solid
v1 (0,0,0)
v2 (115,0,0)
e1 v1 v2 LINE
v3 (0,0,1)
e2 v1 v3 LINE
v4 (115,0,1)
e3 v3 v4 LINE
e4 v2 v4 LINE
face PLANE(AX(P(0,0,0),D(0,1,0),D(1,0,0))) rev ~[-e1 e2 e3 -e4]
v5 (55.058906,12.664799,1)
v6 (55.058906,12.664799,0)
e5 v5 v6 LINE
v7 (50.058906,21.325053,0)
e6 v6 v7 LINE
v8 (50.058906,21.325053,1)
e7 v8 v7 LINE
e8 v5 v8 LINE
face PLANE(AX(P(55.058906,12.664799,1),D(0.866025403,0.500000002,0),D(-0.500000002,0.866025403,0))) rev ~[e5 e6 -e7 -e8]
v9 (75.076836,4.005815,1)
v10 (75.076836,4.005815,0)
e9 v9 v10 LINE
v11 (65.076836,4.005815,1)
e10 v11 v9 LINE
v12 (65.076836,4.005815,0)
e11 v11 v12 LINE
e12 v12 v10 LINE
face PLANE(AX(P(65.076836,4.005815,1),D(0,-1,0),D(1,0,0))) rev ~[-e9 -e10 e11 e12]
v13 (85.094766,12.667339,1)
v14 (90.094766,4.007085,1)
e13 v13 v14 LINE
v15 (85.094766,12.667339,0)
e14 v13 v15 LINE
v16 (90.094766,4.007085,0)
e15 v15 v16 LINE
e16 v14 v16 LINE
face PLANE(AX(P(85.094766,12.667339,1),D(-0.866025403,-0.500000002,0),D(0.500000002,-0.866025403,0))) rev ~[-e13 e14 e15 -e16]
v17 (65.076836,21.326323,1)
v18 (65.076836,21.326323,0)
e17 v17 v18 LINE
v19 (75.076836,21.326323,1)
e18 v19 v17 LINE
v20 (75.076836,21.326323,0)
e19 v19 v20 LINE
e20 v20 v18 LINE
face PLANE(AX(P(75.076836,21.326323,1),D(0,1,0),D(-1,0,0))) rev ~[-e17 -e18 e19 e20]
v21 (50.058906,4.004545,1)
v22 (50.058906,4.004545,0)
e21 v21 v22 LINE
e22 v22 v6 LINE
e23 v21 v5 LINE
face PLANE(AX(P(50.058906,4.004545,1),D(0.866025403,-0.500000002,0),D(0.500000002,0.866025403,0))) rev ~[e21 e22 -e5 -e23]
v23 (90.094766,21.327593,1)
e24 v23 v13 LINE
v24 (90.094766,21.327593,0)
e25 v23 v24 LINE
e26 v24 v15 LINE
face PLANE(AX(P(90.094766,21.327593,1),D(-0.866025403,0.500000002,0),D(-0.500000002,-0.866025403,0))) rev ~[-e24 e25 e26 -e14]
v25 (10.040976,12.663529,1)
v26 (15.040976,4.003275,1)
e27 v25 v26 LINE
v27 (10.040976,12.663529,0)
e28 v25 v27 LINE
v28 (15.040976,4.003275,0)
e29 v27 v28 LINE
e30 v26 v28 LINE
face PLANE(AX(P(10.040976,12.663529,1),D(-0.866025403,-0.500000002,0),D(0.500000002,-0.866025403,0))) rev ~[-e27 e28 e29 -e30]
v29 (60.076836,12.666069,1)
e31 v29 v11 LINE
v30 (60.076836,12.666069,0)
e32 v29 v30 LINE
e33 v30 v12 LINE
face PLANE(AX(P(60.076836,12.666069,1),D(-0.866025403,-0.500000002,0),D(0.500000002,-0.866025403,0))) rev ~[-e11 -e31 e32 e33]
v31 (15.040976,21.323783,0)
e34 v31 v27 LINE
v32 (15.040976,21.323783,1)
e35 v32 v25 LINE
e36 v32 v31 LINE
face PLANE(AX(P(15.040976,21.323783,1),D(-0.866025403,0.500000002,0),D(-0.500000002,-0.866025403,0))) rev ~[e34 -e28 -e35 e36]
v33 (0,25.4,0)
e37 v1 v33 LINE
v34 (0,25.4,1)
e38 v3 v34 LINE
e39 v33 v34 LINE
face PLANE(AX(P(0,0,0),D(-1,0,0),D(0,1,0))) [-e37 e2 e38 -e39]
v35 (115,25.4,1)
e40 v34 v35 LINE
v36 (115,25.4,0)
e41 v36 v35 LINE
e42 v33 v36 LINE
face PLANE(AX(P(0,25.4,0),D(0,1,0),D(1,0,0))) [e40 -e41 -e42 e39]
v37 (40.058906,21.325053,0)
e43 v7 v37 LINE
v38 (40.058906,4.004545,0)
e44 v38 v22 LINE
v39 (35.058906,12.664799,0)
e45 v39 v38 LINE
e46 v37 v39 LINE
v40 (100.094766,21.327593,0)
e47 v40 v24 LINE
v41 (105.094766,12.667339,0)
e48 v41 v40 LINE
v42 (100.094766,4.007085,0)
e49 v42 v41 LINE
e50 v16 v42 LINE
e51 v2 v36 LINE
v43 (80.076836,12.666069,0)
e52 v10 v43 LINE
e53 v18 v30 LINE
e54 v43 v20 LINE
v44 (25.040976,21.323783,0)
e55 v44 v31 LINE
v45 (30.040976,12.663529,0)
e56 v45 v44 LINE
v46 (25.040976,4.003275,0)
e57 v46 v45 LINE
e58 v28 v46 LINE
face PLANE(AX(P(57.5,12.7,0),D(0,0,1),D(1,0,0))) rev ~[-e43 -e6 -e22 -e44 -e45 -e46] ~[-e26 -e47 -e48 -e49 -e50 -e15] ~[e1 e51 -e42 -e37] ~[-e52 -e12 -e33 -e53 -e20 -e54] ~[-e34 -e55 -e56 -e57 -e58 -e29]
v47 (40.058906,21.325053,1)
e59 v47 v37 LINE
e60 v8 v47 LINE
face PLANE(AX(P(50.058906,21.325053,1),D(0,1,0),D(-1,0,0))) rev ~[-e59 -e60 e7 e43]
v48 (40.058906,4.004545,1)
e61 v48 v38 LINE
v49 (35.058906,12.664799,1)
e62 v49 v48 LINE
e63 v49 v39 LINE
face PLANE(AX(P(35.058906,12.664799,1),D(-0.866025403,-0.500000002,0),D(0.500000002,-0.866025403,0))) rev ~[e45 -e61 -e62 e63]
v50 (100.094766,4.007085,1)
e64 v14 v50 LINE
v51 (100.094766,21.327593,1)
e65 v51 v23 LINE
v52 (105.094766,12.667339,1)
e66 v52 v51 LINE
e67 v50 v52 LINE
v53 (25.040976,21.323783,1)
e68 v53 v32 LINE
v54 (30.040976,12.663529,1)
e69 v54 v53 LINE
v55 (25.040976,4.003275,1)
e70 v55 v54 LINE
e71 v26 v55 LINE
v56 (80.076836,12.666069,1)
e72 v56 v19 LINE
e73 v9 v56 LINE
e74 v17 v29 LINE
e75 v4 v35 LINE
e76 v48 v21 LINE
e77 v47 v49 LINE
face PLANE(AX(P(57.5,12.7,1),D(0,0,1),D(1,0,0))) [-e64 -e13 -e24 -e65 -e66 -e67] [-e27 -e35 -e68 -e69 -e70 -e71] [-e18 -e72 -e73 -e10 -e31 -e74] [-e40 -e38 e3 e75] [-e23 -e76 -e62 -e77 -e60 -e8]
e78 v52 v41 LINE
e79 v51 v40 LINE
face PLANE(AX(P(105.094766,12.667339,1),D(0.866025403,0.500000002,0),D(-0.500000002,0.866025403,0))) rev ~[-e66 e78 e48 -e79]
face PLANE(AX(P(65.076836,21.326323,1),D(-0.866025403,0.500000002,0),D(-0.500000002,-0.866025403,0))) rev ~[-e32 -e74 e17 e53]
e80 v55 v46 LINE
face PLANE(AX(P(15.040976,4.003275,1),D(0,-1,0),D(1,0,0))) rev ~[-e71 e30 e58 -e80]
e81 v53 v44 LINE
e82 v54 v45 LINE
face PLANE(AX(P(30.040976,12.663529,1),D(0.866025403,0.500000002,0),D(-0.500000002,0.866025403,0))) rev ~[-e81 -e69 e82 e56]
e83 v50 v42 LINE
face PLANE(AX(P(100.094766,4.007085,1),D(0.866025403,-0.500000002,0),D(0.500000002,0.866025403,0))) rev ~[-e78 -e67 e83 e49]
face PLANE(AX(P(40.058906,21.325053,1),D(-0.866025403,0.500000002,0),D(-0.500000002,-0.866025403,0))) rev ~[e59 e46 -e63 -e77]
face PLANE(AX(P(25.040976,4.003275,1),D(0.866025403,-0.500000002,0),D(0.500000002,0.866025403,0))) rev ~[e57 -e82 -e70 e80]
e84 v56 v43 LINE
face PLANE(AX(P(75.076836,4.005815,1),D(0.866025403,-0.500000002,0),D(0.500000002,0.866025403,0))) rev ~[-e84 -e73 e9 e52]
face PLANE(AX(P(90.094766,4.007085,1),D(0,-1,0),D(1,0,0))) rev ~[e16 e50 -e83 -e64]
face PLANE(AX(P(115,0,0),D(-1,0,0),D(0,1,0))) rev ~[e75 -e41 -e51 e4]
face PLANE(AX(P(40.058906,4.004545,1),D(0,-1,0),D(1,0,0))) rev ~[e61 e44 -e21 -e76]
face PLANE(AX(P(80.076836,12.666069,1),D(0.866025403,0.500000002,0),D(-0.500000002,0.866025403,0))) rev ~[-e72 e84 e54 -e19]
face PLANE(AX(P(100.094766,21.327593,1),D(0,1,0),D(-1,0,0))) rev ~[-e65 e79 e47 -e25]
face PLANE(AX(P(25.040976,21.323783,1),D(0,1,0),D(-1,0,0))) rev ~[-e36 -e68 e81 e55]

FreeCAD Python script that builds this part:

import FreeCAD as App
import Part
import Sketcher
Q = App.Units.Quantity


def add_polygon(sketch, points):
    """Adds a closed chain of lines whose ends are joined by coincident constraints."""
    first, n = sketch.GeometryCount, len(points)
    for a, b in zip(points, points[1:] + points[:1]):
        sketch.addGeometry(Part.LineSegment(App.Vector(*a, 0), App.Vector(*b, 0)), False)
    for i in range(n):
        sketch.addConstraint(Sketcher.Constraint("Coincident", first + i, 2, first + (i + 1) % n, 1))

doc = App.newDocument("Part")
body = doc.addObject("PartDesign::Body", "Body")

# Sketch on XY plane
sketch1 = body.newObject("Sketcher::SketchObject", "Sketch")
sketch1.AttachmentSupport = (doc.getObject("XY_Plane"), [""])
sketch1.MapMode = "FlatFace"
add_polygon(sketch1, [(0, 25), (0, 0), (115, 0), (115, 25)])  # lines 0-3
sketch1.addConstraint(Sketcher.Constraint("Vertical", 0))
sketch1.addConstraint(Sketcher.Constraint("Horizontal", 1))
sketch1.addConstraint(Sketcher.Constraint("Vertical", 2))
sketch1.addConstraint(Sketcher.Constraint("Horizontal", 3))
sketch1.addConstraint(Sketcher.Constraint("Coincident", 0, 2, -1, 1))
sketch1.addConstraint(Sketcher.Constraint("DistanceX", 1, 1, 1, 2, Q("115 mm")))
sketch1.addConstraint(Sketcher.Constraint("DistanceY", 0, 2, 0, 1, Q("25.4 mm")))
pad1 = body.newObject("PartDesign::Pad", "Pad")
pad1.Profile = sketch1
pad1.Length = 1

# Sketch on XY plane
sketch2 = body.newObject("Sketcher::SketchObject", "Sketch001")
sketch2.AttachmentSupport = (doc.getObject("XY_Plane"), [""])
sketch2.MapMode = "FlatFace"
sketch2.AttachmentOffset = App.Placement(App.Vector(0, 0, 1), App.Rotation())
add_polygon(sketch2, [(25, 4), (30, 13), (25, 21), (15, 21), (10, 13), (15, 4)])  # lines 0-5
add_polygon(sketch2, [(50, 4), (55, 13), (50, 21), (40, 21), (35, 13), (40, 4)])  # lines 6-11
add_polygon(sketch2, [(75, 4), (80, 13), (75, 21), (65, 21), (60, 13), (65, 4)])  # lines 12-17
add_polygon(sketch2, [(100, 4), (105, 13), (100, 21), (90, 21), (85, 13), (90, 4)])  # lines 18-23
sketch2.addConstraint(Sketcher.Constraint("Horizontal", 2))
sketch2.addConstraint(Sketcher.Constraint("Horizontal", 5))
sketch2.addConstraint(Sketcher.Constraint("Horizontal", 8))
sketch2.addConstraint(Sketcher.Constraint("Horizontal", 11))
sketch2.addConstraint(Sketcher.Constraint("Horizontal", 14))
sketch2.addConstraint(Sketcher.Constraint("Horizontal", 17))
sketch2.addConstraint(Sketcher.Constraint("Horizontal", 20))
sketch2.addConstraint(Sketcher.Constraint("Horizontal", 23))
sketch2.addConstraint(Sketcher.Constraint("Parallel", 0, 3))
sketch2.addConstraint(Sketcher.Constraint("Parallel", 1, 4))
sketch2.addConstraint(Sketcher.Constraint("Parallel", 3, 6))
sketch2.addConstraint(Sketcher.Constraint("Parallel", 4, 7))
sketch2.addConstraint(Sketcher.Constraint("Parallel", 6, 9))
sketch2.addConstraint(Sketcher.Constraint("Parallel", 7, 10))
sketch2.addConstraint(Sketcher.Constraint("Parallel", 9, 12))
sketch2.addConstraint(Sketcher.Constraint("Parallel", 10, 13))
sketch2.addConstraint(Sketcher.Constraint("Parallel", 12, 15))
sketch2.addConstraint(Sketcher.Constraint("Parallel", 13, 16))
sketch2.addConstraint(Sketcher.Constraint("Parallel", 15, 18))
sketch2.addConstraint(Sketcher.Constraint("Parallel", 16, 19))
sketch2.addConstraint(Sketcher.Constraint("Parallel", 18, 21))
sketch2.addConstraint(Sketcher.Constraint("Parallel", 19, 22))
sketch2.addConstraint(Sketcher.Constraint("Horizontal", 0, 2, 3, 2))
sketch2.addConstraint(Sketcher.Constraint("Horizontal", 6, 2, 9, 2))
sketch2.addConstraint(Sketcher.Constraint("Horizontal", 12, 2, 15, 2))
sketch2.addConstraint(Sketcher.Constraint("Horizontal", 18, 2, 21, 2))
sketch2.addConstraint(Sketcher.Constraint("Vertical", 2, 2, 4, 2))
sketch2.addConstraint(Sketcher.Constraint("Vertical", 1, 2, 5, 2))
sketch2.addConstraint(Sketcher.Constraint("Vertical", 8, 2, 10, 2))
sketch2.addConstraint(Sketcher.Constraint("Vertical", 14, 2, 16, 2))
sketch2.addConstraint(Sketcher.Constraint("Vertical", 20, 2, 22, 2))
sketch2.addConstraint(Sketcher.Constraint("Equal", 5, 8))
sketch2.addConstraint(Sketcher.Constraint("Equal", 11, 14))
sketch2.addConstraint(Sketcher.Constraint("Equal", 17, 20))
sketch2.addConstraint(Sketcher.Constraint("Equal", 4, 6))
sketch2.addConstraint(Sketcher.Constraint("Equal", 10, 12))
sketch2.addConstraint(Sketcher.Constraint("Equal", 16, 18))
sketch2.addConstraint(Sketcher.Constraint("DistanceX", 2, 2, 2, 1, Q("10 mm")))
sketch2.addConstraint(Sketcher.Constraint("Angle", 0, Q("60 deg")))
sketch2.addConstraint(Sketcher.Constraint("Distance", 0, Q("10 mm")))
sketch2.addConstraint(Sketcher.Constraint("DistanceY", -1, 1, 6, 2, Q("12.664799 mm")))
sketch2.addConstraint(Sketcher.Constraint("DistanceY", -1, 1, 0, 2, Q("12.663529 mm")))
sketch2.addConstraint(Sketcher.Constraint("DistanceY", -1, 1, 12, 2, Q("12.666069 mm")))
sketch2.addConstraint(Sketcher.Constraint("DistanceY", -1, 1, 18, 2, Q("12.667339 mm")))
sketch2.addConstraint(Sketcher.Constraint("DistanceX", 0, 2, 6, 2, Q("25.01793 mm")))
sketch2.addConstraint(Sketcher.Constraint("DistanceX", 6, 2, 12, 2, Q("25.01793 mm")))
sketch2.addConstraint(Sketcher.Constraint("DistanceX", 12, 2, 18, 2, Q("25.01793 mm")))
sketch2.addConstraint(Sketcher.Constraint("DistanceX", -1, 1, 0, 2, Q("30.040976 mm")))
pocket1 = body.newObject("PartDesign::Pocket", "Pocket")
pocket1.Profile = sketch2
pocket1.Length = 5

doc.recompute()
